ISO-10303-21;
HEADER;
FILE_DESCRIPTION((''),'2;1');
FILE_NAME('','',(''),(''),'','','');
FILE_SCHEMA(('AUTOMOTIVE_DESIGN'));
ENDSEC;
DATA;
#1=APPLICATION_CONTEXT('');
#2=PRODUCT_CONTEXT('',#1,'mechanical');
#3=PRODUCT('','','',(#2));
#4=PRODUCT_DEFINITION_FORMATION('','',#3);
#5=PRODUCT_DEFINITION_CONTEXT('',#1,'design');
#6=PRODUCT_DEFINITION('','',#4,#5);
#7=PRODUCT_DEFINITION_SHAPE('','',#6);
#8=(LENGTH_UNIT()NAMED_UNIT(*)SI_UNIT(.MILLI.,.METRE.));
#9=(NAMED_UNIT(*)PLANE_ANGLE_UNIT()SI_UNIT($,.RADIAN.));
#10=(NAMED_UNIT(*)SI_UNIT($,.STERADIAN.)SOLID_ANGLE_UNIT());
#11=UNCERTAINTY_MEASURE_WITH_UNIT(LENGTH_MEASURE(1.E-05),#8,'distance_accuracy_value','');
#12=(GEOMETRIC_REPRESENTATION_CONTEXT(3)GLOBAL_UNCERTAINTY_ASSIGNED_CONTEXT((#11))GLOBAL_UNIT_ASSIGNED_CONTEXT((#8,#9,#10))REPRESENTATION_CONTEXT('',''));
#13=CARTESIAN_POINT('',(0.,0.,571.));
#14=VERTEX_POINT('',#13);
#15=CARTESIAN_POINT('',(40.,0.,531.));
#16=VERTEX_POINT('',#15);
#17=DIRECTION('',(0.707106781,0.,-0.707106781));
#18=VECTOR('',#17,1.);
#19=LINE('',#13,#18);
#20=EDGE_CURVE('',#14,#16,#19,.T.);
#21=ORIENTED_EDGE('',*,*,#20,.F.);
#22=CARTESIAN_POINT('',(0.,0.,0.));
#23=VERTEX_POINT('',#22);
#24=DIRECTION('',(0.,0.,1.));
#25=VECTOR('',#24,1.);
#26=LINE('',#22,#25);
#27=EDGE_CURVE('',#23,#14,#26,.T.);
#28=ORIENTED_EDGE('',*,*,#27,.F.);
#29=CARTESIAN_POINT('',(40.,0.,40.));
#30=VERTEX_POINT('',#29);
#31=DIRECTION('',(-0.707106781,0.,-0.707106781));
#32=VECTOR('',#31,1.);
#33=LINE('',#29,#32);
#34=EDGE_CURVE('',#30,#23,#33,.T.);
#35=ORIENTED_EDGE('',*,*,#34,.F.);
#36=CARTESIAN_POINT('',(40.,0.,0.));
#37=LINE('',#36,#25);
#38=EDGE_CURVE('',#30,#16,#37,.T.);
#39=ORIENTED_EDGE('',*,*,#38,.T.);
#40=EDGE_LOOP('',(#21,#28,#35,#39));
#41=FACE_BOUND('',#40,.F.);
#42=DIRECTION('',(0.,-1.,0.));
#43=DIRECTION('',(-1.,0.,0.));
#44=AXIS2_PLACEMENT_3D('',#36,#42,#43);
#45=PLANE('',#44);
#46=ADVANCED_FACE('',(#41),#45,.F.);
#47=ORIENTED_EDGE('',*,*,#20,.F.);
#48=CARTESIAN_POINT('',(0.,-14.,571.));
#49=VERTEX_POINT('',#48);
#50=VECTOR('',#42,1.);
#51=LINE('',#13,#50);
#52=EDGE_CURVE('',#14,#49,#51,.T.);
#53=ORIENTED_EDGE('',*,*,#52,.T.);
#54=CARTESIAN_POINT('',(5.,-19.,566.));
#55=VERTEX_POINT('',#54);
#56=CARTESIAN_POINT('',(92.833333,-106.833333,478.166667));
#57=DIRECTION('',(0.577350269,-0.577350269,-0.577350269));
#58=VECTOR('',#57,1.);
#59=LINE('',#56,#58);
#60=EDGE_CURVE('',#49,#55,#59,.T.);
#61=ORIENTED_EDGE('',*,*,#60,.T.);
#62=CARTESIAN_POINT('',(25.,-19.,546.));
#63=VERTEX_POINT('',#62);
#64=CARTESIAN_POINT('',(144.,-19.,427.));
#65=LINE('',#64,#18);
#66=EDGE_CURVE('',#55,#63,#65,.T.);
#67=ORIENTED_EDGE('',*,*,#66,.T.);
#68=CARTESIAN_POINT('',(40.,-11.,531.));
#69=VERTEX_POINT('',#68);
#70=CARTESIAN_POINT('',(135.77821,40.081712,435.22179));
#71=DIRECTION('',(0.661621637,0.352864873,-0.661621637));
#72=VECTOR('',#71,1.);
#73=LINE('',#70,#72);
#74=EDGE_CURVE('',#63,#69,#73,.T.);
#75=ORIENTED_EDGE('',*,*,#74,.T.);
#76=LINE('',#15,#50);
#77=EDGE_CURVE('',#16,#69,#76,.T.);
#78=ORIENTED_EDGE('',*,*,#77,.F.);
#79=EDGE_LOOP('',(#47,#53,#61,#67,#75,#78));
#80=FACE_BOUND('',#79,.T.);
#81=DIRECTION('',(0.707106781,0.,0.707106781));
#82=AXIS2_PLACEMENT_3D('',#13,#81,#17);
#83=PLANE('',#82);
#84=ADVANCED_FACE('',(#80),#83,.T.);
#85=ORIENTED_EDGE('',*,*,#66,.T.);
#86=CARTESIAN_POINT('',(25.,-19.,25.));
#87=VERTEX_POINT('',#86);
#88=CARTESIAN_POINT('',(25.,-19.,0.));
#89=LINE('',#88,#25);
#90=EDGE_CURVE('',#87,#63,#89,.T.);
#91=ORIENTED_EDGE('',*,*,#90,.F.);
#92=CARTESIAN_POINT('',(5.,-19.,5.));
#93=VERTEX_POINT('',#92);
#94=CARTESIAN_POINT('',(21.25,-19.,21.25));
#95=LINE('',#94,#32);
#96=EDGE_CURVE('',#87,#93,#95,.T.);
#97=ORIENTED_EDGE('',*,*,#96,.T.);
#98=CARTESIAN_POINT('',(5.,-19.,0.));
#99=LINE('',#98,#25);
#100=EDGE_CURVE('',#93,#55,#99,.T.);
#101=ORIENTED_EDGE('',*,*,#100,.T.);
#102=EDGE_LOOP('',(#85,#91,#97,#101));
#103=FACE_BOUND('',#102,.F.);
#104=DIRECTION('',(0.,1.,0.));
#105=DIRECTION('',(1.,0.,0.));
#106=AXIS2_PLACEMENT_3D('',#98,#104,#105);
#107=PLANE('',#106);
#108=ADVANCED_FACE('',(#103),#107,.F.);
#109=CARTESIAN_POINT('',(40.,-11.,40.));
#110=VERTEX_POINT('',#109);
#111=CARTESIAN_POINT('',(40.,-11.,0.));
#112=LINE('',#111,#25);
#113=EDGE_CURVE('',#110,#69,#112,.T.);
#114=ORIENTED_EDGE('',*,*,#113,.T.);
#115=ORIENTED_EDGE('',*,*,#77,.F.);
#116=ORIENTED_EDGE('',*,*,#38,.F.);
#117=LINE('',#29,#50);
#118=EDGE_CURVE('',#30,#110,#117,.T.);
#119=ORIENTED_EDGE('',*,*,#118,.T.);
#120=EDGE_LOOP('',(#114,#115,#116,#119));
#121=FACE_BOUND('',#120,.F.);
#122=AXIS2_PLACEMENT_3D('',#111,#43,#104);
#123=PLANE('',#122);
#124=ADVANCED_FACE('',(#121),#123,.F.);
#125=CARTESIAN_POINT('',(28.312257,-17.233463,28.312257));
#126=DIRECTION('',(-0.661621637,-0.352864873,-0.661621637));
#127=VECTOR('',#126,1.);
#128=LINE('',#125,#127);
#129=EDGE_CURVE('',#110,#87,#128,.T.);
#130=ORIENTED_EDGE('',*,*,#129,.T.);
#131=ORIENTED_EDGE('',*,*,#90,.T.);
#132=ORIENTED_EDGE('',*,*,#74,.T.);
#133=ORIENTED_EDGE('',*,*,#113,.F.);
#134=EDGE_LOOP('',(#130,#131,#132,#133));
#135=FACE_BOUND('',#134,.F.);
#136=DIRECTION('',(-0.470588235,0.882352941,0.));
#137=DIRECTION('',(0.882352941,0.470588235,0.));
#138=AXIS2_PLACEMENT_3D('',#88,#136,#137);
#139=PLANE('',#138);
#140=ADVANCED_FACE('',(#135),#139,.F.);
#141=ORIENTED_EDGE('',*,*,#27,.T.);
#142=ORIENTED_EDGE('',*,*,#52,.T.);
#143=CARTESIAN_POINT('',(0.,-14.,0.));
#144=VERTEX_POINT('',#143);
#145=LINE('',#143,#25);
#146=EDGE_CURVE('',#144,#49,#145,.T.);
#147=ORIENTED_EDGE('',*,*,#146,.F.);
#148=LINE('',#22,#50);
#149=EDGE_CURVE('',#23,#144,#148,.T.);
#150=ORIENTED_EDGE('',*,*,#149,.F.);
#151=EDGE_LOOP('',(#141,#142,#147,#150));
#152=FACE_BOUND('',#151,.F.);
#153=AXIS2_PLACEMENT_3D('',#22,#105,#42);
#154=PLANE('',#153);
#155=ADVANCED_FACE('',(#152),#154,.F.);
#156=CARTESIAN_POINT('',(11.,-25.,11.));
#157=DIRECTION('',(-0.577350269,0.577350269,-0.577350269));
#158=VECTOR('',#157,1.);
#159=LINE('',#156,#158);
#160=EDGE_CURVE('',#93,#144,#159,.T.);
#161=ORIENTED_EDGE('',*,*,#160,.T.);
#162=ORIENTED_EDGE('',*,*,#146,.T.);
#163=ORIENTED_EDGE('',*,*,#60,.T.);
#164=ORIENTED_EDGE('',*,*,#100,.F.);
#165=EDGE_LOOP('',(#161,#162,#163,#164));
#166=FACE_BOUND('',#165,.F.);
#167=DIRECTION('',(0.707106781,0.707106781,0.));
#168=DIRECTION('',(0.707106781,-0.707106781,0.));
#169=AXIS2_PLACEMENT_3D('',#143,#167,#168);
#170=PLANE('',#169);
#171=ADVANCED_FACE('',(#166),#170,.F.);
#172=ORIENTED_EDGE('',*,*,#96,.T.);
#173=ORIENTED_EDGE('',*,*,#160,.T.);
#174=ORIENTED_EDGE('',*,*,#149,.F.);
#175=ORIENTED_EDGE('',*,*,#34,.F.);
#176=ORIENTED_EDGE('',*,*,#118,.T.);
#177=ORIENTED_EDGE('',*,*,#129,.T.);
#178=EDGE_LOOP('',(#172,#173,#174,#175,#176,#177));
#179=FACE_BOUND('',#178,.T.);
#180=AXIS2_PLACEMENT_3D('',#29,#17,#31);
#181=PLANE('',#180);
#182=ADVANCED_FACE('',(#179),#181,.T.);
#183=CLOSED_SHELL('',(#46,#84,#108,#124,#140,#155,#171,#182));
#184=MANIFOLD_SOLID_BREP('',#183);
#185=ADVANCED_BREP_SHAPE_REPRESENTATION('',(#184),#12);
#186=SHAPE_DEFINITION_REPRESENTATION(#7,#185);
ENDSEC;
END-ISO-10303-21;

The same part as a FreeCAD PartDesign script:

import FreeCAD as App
import Part
import Sketcher
from FreeCAD import Vector
Q = App.Units.Quantity


def add_polygon(sketch, points):
    """Adds a closed chain of lines whose ends are joined by coincident constraints."""
    first, n = sketch.GeometryCount, len(points)
    for a, b in zip(points, points[1:] + points[:1]):
        sketch.addGeometry(Part.LineSegment(App.Vector(*a, 0), App.Vector(*b, 0)), False)
    for i in range(n):
        sketch.addConstraint(Sketcher.Constraint("Coincident", first + i, 2, first + (i + 1) % n, 1))

doc = App.newDocument("Part")
body = doc.addObject("PartDesign::Body", "Body")

sketch1 = doc.addObject("Sketcher::SketchObject", "Sketch")
body.addObject(sketch1)
sketch1.AttachmentSupport = (doc.XY_Plane, [""])
sketch1.MapMode = "FlatFace"
add_polygon(sketch1, [(40, 0), (0, 0), (0, -14), (5, -19), (25, -19), (40, -11)])
sketch1.addConstraint(Sketcher.Constraint("Horizontal", 0))
sketch1.addConstraint(Sketcher.Constraint("Vertical", 1))
sketch1.addConstraint(Sketcher.Constraint("Horizontal", 3))
sketch1.addConstraint(Sketcher.Constraint("Vertical", 5))
sketch1.addConstraint(Sketcher.Constraint("Coincident", 0, 2, -1, 1))
sketch1.addConstraint(Sketcher.Constraint("DistanceX", 0, 2, 0, 1, Q("40 mm")))
sketch1.addConstraint(Sketcher.Constraint("DistanceX", 3, 1, 3, 2, Q("20 mm")))
sketch1.addConstraint(Sketcher.Constraint("DistanceY", 1, 2, 1, 1, Q("14 mm")))
sketch1.addConstraint(Sketcher.Constraint("DistanceY", 5, 1, 5, 2, Q("11 mm")))
sketch1.addConstraint(Sketcher.Constraint("Angle", 2, Q("-45 deg")))
sketch1.addConstraint(Sketcher.Constraint("Distance", 4, Q("17 mm")))
pad1 = doc.addObject("PartDesign::Pad", "Pad")
body.addObject(pad1)
pad1.Profile = sketch1
pad1.Length = 571

sketch2 = doc.addObject("Sketcher::SketchObject", "Sketch001")
body.addObject(sketch2)
sketch2.AttachmentSupport = (doc.XZ_Plane, [""])
sketch2.MapMode = "FlatFace"
add_polygon(sketch2, [(40, 40), (0, 0), (40, 0)])
add_polygon(sketch2, [(0, 571), (40, 531), (40, 571)])
sketch2.addConstraint(Sketcher.Constraint("Horizontal", 1))
sketch2.addConstraint(Sketcher.Constraint("Vertical", 2))
sketch2.addConstraint(Sketcher.Constraint("Vertical", 4))
sketch2.addConstraint(Sketcher.Constraint("Horizontal", 5))
sketch2.addConstraint(Sketcher.Constraint("Coincident", 0, 2, -1, 1))
sketch2.addConstraint(Sketcher.Constraint("PointOnObject", 5, 2, -2))
sketch2.addConstraint(Sketcher.Constraint("Perpendicular", 0, 3))
sketch2.addConstraint(Sketcher.Constraint("Vertical", 2, 2, 3, 2))
sketch2.addConstraint(Sketcher.Constraint("Equal", 5, 2))
sketch2.addConstraint(Sketcher.Constraint("DistanceX", 1, 1, 1, 2, Q("40 mm")))
sketch2.addConstraint(Sketcher.Constraint("DistanceY", -1, 1, 3, 2, Q("531 mm")))
pocket1 = doc.addObject("PartDesign::Pocket", "Pocket")
body.addObject(pocket1)
pocket1.Profile = sketch2
pocket1.Length = 25
pocket1.Reversed = True

doc.recompute()
